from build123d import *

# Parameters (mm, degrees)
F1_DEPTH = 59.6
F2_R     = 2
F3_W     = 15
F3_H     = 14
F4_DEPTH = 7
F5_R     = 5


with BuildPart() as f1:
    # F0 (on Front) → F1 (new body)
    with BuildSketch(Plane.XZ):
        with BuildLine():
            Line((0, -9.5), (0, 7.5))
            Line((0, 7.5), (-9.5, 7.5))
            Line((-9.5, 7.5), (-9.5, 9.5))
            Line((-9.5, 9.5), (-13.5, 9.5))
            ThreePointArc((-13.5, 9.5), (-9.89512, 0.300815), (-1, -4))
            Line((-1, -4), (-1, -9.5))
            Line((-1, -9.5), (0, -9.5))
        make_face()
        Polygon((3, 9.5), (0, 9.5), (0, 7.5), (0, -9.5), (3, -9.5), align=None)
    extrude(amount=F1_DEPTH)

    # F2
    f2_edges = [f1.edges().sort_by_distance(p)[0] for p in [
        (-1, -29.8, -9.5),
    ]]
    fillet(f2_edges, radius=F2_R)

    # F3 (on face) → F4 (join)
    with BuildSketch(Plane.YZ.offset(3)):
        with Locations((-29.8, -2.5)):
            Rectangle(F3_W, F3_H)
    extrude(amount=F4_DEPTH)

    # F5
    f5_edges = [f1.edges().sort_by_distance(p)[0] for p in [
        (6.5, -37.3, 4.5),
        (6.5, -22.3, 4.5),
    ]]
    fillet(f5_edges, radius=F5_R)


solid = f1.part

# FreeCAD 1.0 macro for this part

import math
import FreeCAD as App
import Part
import Sketcher

V = App.Vector


def edges_at(feature, points):
    """Names of the edges that pass closest to the given points."""
    edges = feature.Shape.Edges
    near = lambda p: min(range(len(edges)), key=lambda i: edges[i].distToShape(Part.Vertex(*p))[0])
    return sorted({f"Edge{near(p) + 1}" for p in points})


def add_polygon(sketch, points):
    """Adds a closed chain of lines whose ends are joined by coincident constraints."""
    first, n = sketch.GeometryCount, len(points)
    for a, b in zip(points, points[1:] + points[:1]):
        sketch.addGeometry(Part.LineSegment(App.Vector(*a, 0), App.Vector(*b, 0)), False)
    for i in range(n):
        sketch.addConstraint(Sketcher.Constraint("Coincident", first + i, 2, first + (i + 1) % n, 1))

doc = App.newDocument("Part")
body = doc.addObject("PartDesign::Body", "Body")

sketch1 = body.newObject("Sketcher::SketchObject", "Sketch")
sketch1.AttachmentSupport = (doc.getObject("XZ_Plane"), [""])
sketch1.MapMode = "FlatFace"
sketch1.addGeometry(Part.LineSegment(V(0, 7.5, 0), V(-9.5, 7.5, 0)), False)
sketch1.addGeometry(Part.LineSegment(V(-9.5, 7.5, 0), V(-9.5, 9.5, 0)), False)
sketch1.addGeometry(Part.LineSegment(V(-9.5, 9.5, 0), V(-13.5, 9.5, 0)), False)
sketch1.addGeometry(Part.ArcOfCircle(Part.Circle(V(0, 9.5, 0), V(0, 0, 1), 13.5), math.radians(180), math.radians(266)), False)
sketch1.addGeometry(Part.LineSegment(V(-1, -4, 0), V(-1, -9.5, 0)), False)
sketch1.addGeometry(Part.LineSegment(V(-1, -9.5, 0), V(3, -9.5, 0)), False)
sketch1.addGeometry(Part.LineSegment(V(3, -9.5, 0), V(3, 9.5, 0)), False)
sketch1.addGeometry(Part.LineSegment(V(3, 9.5, 0), V(0, 9.5, 0)), False)
sketch1.addGeometry(Part.LineSegment(V(0, 9.5, 0), V(0, 7.5, 0)), False)
sketch1.addConstraint(Sketcher.Constraint("Coincident", 0, 2, 1, 1))
sketch1.addConstraint(Sketcher.Constraint("Coincident", 1, 2, 2, 1))
sketch1.addConstraint(Sketcher.Constraint("Coincident", 2, 2, 3, 1))
sketch1.addConstraint(Sketcher.Constraint("Coincident", 3, 2, 4, 1))
sketch1.addConstraint(Sketcher.Constraint("Coincident", 4, 2, 5, 1))
sketch1.addConstraint(Sketcher.Constraint("Coincident", 5, 2, 6, 1))
sketch1.addConstraint(Sketcher.Constraint("Coincident", 6, 2, 7, 1))
sketch1.addConstraint(Sketcher.Constraint("Coincident", 7, 2, 8, 1))
sketch1.addConstraint(Sketcher.Constraint("Coincident", 8, 2, 0, 1))
sketch1.addConstraint(Sketcher.Constraint("Horizontal", 0))
sketch1.addConstraint(Sketcher.Constraint("Vertical", 1))
sketch1.addConstraint(Sketcher.Constraint("Horizontal", 2))
sketch1.addConstraint(Sketcher.Constraint("Vertical", 4))
sketch1.addConstraint(Sketcher.Constraint("Horizontal", 5))
sketch1.addConstraint(Sketcher.Constraint("Vertical", 6))
sketch1.addConstraint(Sketcher.Constraint("Horizontal", 7))
sketch1.addConstraint(Sketcher.Constraint("Vertical", 8))
sketch1.addConstraint(Sketcher.Constraint("PointOnObject", 7, 2, -2))
sketch1.addConstraint(Sketcher.Constraint("Horizontal", 3, 3, 1, 2))
sketch1.addConstraint(Sketcher.Constraint("Horizontal", 2, 2, 6, 2))
sketch1.addConstraint(Sketcher.Constraint("Equal", 2, 5))
sketch1.addConstraint(Sketcher.Constraint("DistanceX", 2, 2, 2, 1, 4.0))
sketch1.addConstraint(Sketcher.Constraint("DistanceX", 7, 2, 7, 1, 3.0))
sketch1.addConstraint(Sketcher.Constraint("DistanceY", 1, 1, 1, 2, 2.0))
sketch1.addConstraint(Sketcher.Constraint("DistanceY", 6, 1, 6, 2, 19.0))
sketch1.addConstraint(Sketcher.Constraint("Radius", 3, 13.539999))
sketch1.addConstraint(Sketcher.Constraint("DistanceX", 0, 2, 0, 1, 9.5))
sketch1.addConstraint(Sketcher.Constraint("DistanceY", 3, 2, -1, 1, 4.0))
pad1 = body.newObject("PartDesign::Pad", "Pad")
pad1.Profile = sketch1
pad1.Length = 59.6
doc.recompute()

fillet = body.newObject("PartDesign::Fillet", "Fillet")
fillet.Base = (pad1, edges_at(pad1, [(-1, -29.8, -9.5)]))
fillet.Radius = 2

sketch2 = body.newObject("Sketcher::SketchObject", "Sketch001")
sketch2.AttachmentSupport = (doc.getObject("YZ_Plane"), [""])
sketch2.MapMode = "FlatFace"
sketch2.AttachmentOffset = App.Placement(V(0, 0, 3), App.Rotation())
add_polygon(sketch2, [(-37, 4), (-37, -10), (-22, -10), (-22, 4)])
sketch2.addConstraint(Sketcher.Constraint("Vertical", 0))
sketch2.addConstraint(Sketcher.Constraint("Horizontal", 1))
sketch2.addConstraint(Sketcher.Constraint("Vertical", 2))
sketch2.addConstraint(Sketcher.Constraint("Horizontal", 3))
sketch2.addConstraint(Sketcher.Constraint("DistanceX", 1, 1, 1, 2, 15.0))
sketch2.addConstraint(Sketcher.Constraint("DistanceY", 0, 2, 0, 1, 14.0))
sketch2.addConstraint(Sketcher.Constraint("DistanceX", 0, 2, -1, 1, 37.3))
sketch2.addConstraint(Sketcher.Constraint("DistanceY", 0, 2, -1, 1, 9.5))
pad2 = body.newObject("PartDesign::Pad", "Pad001")
pad2.Profile = sketch2
pad2.Length = 7
doc.recompute()

fillet2 = body.newObject("PartDesign::Fillet", "Fillet001")
fillet2.Base = (pad2, edges_at(pad2, [(6.5, -37.3, 4.5), (6.5, -22.3, 4.5)]))
fillet2.Radius = 5

doc.recompute()
